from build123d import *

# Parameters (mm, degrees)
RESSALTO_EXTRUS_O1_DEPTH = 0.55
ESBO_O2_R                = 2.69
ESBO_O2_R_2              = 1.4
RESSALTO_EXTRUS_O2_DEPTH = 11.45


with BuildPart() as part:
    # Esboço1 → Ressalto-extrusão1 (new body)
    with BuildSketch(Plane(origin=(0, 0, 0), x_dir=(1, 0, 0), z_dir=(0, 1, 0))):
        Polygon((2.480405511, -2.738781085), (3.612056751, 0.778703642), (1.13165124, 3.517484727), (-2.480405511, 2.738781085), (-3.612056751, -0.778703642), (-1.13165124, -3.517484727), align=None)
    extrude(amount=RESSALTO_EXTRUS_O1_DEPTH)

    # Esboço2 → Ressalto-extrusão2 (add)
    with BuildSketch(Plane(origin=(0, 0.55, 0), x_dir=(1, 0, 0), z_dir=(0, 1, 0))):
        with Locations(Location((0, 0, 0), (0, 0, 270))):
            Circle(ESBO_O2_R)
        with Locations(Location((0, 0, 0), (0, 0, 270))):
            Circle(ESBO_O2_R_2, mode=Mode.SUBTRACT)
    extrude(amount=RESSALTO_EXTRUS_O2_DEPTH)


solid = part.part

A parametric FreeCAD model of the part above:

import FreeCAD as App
import Part
import Sketcher
Q = App.Units.Quantity


def add_polygon(sketch, points):
    """Adds a closed chain of lines whose ends are joined by coincident constraints."""
    first, n = sketch.GeometryCount, len(points)
    for a, b in zip(points, points[1:] + points[:1]):
        sketch.addGeometry(Part.LineSegment(App.Vector(*a, 0), App.Vector(*b, 0)), False)
    for i in range(n):
        sketch.addConstraint(Sketcher.Constraint("Coincident", first + i, 2, first + (i + 1) % n, 1))

doc = App.newDocument("Part")
body = doc.addObject("PartDesign::Body", "Body")

# Sketch on XZ plane
sketch1 = doc.addObject("Sketcher::SketchObject", "Sketch")
body.addObject(sketch1)
sketch1.AttachmentSupport = (doc.XZ_Plane, [""])
sketch1.MapMode = "FlatFace"
add_polygon(sketch1, [(2.480406, 2.738781), (3.612057, -0.778704), (1.131651, -3.517485), (-2.480406, -2.738781), (-3.612057, 0.778704), (-1.131651, 3.517485)])  # lines 0-5
sketch1.addConstraint([
    Sketcher.Constraint("Symmetric", 0, 2, 3, 2, -1, 1),
    Sketcher.Constraint("Symmetric", 1, 2, 4, 2, -1, 1),
    Sketcher.Constraint("Symmetric", 2, 2, 5, 2, -1, 1),
    Sketcher.Constraint("Equal", 0, 1),
    Sketcher.Constraint("Equal", 1, 2),
    Sketcher.Constraint("Distance", 0, Q("3.695042 mm")),
    Sketcher.Constraint("DistanceX", -1, 1, 1, 2, Q("1.131651 mm")),
    Sketcher.Constraint("DistanceY", 2, 2, -1, 1, Q("2.738781 mm")),
    Sketcher.Constraint("DistanceY", 1, 2, 0, 2, Q("2.738781 mm")),
])
pad1 = doc.addObject("PartDesign::Pad", "Pad")
body.addObject(pad1)
pad1.Profile = sketch1
pad1.Length = 0.55
pad1.Reversed = True

# Sketch on XZ plane
sketch2 = doc.addObject("Sketcher::SketchObject", "Sketch001")
body.addObject(sketch2)
sketch2.AttachmentSupport = (doc.XZ_Plane, [""])
sketch2.MapMode = "FlatFace"
sketch2.AttachmentOffset = App.Placement(App.Vector(0, 0, -0.55), App.Rotation())
sketch2.addGeometry([
    Part.Circle(App.Vector(0, 0, 0), App.Vector(0, 0, 1), 2.69),
    Part.Circle(App.Vector(0, 0, 0), App.Vector(0, 0, 1), 1.4),
], False)
sketch2.addConstraint([
    Sketcher.Constraint("Coincident", 0, 3, -1, 1),
    Sketcher.Constraint("Coincident", 1, 3, -1, 1),
    Sketcher.Constraint("Diameter", 1, Q("2.8 mm")),
    Sketcher.Constraint("Diameter", 0, Q("5.38 mm")),
])
pad2 = doc.addObject("PartDesign::Pad", "Pad001")
body.addObject(pad2)
pad2.Profile = sketch2
pad2.Length = 11.45
pad2.Reversed = True

doc.recompute()
